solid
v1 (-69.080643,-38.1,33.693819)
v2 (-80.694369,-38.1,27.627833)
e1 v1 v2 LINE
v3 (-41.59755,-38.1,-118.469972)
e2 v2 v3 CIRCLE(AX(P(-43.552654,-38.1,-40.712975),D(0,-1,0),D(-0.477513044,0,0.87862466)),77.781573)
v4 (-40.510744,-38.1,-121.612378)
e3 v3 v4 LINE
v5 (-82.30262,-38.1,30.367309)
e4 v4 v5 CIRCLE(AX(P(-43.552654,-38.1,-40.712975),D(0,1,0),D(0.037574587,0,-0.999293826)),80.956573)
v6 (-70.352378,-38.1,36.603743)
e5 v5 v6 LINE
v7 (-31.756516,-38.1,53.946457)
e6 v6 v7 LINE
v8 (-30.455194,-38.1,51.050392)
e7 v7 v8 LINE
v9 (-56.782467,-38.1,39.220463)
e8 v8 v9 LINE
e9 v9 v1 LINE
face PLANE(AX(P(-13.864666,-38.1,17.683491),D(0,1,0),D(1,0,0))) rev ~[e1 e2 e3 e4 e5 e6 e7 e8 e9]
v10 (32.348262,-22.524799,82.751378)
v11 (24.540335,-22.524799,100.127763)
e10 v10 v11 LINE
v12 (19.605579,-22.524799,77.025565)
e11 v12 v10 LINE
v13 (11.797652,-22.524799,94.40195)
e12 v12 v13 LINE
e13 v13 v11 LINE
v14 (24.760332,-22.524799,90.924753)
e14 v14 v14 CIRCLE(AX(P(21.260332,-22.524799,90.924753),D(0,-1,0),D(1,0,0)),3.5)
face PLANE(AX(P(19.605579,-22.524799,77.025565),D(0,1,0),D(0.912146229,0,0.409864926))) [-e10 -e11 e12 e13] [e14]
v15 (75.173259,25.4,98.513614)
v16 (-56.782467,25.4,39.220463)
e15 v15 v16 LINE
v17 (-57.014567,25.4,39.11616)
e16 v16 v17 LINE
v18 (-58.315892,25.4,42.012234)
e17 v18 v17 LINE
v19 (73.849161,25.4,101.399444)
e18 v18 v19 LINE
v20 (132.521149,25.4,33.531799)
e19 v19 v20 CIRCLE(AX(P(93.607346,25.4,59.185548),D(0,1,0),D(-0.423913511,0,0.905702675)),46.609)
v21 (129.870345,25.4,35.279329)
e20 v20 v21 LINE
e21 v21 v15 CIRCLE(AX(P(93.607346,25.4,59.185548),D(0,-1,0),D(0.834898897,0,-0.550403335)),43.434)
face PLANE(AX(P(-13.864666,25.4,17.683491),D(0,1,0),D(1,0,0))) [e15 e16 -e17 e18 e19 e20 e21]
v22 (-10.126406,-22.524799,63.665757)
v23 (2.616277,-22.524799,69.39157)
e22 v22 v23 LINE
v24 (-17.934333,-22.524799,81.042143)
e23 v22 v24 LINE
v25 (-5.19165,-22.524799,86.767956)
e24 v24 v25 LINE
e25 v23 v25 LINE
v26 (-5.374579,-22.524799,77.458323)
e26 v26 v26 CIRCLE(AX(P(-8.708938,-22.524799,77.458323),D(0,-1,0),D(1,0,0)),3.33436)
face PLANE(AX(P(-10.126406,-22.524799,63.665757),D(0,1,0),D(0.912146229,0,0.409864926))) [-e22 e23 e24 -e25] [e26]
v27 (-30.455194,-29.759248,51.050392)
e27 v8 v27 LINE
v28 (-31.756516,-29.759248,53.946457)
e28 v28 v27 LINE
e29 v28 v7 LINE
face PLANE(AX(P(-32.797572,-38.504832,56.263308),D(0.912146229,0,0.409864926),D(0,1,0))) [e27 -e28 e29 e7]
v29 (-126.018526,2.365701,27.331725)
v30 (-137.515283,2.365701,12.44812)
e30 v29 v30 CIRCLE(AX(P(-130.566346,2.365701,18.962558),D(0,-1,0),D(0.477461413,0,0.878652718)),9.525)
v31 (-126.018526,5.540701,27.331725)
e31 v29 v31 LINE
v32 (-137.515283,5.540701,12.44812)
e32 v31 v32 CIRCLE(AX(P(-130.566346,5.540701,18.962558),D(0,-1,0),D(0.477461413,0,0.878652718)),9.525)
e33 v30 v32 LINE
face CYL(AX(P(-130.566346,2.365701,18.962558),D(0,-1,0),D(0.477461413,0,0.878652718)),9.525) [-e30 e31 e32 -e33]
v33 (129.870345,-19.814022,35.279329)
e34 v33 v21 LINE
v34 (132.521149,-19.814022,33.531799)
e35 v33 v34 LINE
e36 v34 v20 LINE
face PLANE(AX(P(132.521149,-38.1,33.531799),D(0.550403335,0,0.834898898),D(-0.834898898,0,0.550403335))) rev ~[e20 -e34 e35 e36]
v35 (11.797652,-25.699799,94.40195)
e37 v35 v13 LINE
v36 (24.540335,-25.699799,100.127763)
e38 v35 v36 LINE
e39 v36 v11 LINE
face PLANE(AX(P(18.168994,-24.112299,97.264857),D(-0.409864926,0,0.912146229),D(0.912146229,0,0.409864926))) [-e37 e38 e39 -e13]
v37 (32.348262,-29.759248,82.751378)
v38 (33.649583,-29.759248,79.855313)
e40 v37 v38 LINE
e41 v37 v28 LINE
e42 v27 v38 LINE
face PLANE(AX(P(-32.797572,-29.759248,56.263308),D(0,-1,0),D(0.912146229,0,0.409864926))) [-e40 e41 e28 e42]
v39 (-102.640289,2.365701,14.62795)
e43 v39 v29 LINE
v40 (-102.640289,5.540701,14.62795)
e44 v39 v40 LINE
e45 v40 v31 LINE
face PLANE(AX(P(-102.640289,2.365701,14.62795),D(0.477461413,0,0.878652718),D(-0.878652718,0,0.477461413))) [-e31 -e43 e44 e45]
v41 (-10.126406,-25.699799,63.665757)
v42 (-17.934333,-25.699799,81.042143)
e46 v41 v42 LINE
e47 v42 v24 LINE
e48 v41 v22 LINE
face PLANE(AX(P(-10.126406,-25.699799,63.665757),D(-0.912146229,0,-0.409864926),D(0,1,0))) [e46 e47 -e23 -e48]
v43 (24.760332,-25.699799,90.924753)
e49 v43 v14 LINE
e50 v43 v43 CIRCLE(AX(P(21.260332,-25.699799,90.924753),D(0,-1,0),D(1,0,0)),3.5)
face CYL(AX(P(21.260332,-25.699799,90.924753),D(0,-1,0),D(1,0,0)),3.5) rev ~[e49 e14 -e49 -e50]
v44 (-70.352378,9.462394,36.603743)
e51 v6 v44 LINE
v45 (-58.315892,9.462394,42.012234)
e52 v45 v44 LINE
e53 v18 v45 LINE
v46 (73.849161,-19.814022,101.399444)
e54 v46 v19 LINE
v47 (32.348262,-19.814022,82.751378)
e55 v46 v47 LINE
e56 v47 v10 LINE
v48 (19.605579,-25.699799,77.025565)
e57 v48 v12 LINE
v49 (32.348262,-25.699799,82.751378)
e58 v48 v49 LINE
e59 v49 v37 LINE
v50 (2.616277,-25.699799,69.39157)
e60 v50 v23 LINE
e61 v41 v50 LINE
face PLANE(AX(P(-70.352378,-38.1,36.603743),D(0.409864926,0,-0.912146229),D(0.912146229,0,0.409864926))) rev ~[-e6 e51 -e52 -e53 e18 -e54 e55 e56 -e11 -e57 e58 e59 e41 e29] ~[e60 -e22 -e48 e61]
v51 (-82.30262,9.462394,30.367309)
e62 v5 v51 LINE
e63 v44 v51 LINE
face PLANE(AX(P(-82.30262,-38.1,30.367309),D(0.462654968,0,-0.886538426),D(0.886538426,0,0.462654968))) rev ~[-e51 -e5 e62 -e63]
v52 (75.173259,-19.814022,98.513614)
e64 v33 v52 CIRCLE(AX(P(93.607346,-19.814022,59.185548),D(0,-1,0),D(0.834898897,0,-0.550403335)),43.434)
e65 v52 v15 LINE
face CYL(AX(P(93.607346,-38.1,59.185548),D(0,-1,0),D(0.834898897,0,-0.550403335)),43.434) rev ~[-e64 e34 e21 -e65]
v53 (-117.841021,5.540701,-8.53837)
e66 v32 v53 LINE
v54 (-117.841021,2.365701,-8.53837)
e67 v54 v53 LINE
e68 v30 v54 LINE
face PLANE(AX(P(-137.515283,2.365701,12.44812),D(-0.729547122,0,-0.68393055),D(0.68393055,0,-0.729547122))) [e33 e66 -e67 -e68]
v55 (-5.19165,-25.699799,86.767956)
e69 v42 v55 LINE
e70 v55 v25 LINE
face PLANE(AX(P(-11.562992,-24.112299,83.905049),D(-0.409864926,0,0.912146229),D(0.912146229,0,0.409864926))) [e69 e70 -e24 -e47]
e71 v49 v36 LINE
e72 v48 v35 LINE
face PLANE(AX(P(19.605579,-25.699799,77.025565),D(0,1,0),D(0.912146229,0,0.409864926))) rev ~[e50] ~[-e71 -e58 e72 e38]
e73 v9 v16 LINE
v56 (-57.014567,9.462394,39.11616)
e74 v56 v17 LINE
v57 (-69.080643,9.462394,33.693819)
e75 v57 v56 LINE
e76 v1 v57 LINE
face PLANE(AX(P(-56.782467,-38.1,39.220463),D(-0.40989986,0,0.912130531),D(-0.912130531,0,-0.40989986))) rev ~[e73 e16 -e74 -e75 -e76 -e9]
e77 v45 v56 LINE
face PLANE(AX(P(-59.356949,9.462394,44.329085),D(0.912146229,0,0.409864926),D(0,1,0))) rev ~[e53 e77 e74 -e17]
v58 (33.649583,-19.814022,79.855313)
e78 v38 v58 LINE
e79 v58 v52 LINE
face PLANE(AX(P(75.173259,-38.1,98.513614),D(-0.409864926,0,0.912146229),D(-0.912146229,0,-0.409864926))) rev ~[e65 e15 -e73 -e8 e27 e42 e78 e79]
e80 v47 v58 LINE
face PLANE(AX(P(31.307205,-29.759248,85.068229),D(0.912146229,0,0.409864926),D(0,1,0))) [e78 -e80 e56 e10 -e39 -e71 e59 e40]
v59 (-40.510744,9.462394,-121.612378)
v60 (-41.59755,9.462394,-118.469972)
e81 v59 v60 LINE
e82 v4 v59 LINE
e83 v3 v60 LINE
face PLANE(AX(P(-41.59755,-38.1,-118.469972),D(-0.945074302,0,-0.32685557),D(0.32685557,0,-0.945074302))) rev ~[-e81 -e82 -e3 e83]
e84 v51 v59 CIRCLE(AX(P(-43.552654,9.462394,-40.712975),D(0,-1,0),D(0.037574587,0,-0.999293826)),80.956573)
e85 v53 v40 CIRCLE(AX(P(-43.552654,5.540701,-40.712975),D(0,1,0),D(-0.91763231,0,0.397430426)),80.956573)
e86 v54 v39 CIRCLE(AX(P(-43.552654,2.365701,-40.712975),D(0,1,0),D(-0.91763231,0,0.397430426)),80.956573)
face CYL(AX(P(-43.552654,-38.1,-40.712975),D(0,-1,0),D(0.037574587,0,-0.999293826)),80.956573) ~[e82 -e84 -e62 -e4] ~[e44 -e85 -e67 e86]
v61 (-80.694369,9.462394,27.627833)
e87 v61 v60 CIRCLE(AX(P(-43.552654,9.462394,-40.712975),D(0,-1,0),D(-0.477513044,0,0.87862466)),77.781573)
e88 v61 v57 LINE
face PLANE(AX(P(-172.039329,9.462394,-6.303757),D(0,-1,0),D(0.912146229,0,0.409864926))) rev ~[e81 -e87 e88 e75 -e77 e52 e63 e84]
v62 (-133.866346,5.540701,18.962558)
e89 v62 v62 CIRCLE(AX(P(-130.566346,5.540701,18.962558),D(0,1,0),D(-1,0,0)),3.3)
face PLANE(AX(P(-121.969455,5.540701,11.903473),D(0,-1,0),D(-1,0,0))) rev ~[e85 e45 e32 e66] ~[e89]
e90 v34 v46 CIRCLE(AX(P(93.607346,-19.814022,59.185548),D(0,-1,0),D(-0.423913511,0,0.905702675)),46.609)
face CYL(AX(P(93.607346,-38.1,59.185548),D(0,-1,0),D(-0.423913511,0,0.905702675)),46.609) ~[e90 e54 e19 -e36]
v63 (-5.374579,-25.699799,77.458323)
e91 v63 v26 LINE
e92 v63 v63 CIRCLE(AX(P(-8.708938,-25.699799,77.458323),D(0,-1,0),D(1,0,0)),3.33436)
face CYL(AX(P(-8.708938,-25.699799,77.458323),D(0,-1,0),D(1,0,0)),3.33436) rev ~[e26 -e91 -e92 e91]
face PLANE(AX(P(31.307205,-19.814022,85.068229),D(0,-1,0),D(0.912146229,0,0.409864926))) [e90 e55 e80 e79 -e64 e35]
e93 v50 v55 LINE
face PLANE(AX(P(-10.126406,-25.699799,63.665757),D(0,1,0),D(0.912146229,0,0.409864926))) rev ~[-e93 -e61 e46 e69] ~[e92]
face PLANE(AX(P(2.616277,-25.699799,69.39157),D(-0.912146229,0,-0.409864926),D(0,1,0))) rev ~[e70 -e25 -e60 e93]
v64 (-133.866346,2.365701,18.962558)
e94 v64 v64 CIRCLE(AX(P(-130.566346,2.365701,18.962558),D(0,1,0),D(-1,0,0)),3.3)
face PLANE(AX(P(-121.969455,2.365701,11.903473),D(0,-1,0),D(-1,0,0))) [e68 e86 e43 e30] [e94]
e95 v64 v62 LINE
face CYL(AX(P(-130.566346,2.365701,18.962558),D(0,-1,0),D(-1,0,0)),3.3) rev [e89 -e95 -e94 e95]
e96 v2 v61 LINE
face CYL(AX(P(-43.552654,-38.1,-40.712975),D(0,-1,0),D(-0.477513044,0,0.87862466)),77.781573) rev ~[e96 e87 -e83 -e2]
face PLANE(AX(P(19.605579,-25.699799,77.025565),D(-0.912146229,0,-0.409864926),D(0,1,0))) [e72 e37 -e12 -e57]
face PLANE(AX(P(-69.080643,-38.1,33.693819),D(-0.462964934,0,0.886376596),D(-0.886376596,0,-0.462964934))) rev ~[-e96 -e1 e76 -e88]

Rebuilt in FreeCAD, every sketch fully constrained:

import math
import FreeCAD as App
import Part
import Sketcher
from FreeCAD import Vector
Q = App.Units.Quantity


def add_polygon(sketch, points):
    """Adds a closed chain of lines whose ends are joined by coincident constraints."""
    first, n = sketch.GeometryCount, len(points)
    for a, b in zip(points, points[1:] + points[:1]):
        sketch.addGeometry(Part.LineSegment(App.Vector(*a, 0), App.Vector(*b, 0)), False)
    for i in range(n):
        sketch.addConstraint(Sketcher.Constraint("Coincident", first + i, 2, first + (i + 1) % n, 1))

doc = App.newDocument("Part")
body = doc.addObject("PartDesign::Body", "Body")

sketch1 = doc.addObject("Sketcher::SketchObject", "Sketch")
body.addObject(sketch1)
sketch1.AttachmentSupport = (doc.XZ_Plane, [""])
sketch1.MapMode = "FlatFace"
sketch1.addGeometry([
    Part.LineSegment(Vector(75.173259, 98.513614, 0), Vector(-56.782467, 39.220463, 0)),
    Part.LineSegment(Vector(-56.782467, 39.220463, 0), Vector(-69.080643, 33.693819, 0)),
    Part.LineSegment(Vector(-69.080643, 33.693819, 0), Vector(-80.694369, 27.627833, 0)),
    Part.ArcOfCircle(Part.Circle(Vector(-43.552654, -40.712975, 0), Vector(0, 0, 1), 77.781573), math.radians(118.523101), math.radians(271.440328)),
    Part.LineSegment(Vector(-41.59755, -118.469972, 0), Vector(-40.510744, -121.612378, 0)),
    Part.ArcOfCircle(Part.Circle(Vector(-43.552654, -40.712975, 0), Vector(0, 0, 1), 80.956573), math.radians(118.597351), math.radians(272.153372)),
    Part.LineSegment(Vector(-82.30262, 30.367309, 0), Vector(-70.352378, 36.603743, 0)),
    Part.LineSegment(Vector(-70.352378, 36.603743, 0), Vector(73.849161, 101.399444, 0)),
    Part.ArcOfCircle(Part.Circle(Vector(93.607346, 59.185548, 0), Vector(0, 0, 1), 46.609), math.radians(-33.394688), math.radians(115.081912)),
    Part.LineSegment(Vector(132.521149, 33.531799, 0), Vector(129.870345, 35.279329, 0)),
    Part.ArcOfCircle(Part.Circle(Vector(93.607346, 59.185548, 0), Vector(0, 0, 1), 43.434), math.radians(-33.394688), math.radians(115.113708)),
], False)
sketch1.addConstraint([
    Sketcher.Constraint("Coincident", 0, 2, 1, 1),
    Sketcher.Constraint("Coincident", 1, 2, 2, 1),
    Sketcher.Constraint("Coincident", 2, 2, 3, 1),
    Sketcher.Constraint("Coincident", 3, 2, 4, 1),
    Sketcher.Constraint("Coincident", 4, 2, 5, 2),
    Sketcher.Constraint("Coincident", 5, 1, 6, 1),
    Sketcher.Constraint("Coincident", 6, 2, 7, 1),
    Sketcher.Constraint("Coincident", 7, 2, 8, 2),
    Sketcher.Constraint("Coincident", 8, 1, 9, 1),
    Sketcher.Constraint("Coincident", 9, 2, 10, 1),
    Sketcher.Constraint("Coincident", 10, 2, 0, 1),
    Sketcher.Constraint("Coincident", 5, 3, 3, 3),
    Sketcher.Constraint("Coincident", 10, 3, 8, 3),
    Sketcher.Constraint("Parallel", 0, 7),
    Sketcher.Constraint("Radius", 10, Q("1.71 in")),
    Sketcher.Constraint("Radius", 8, Q("1.835 in")),
    Sketcher.Constraint("DistanceX", 5, 3, 8, 3, Q("5.4 in")),
    Sketcher.Constraint("Radius", 3, Q("77.781573 mm")),
    Sketcher.Constraint("Radius", 5, Q("80.956573 mm")),
    Sketcher.Constraint("Distance", 0, Q("144.6651 mm")),
    Sketcher.Constraint("DistanceY", -1, 1, 8, 1, Q("33.531799 mm")),
    Sketcher.Constraint("DistanceX", 1, 2, 4, 2, Q("28.569899 mm")),
    Sketcher.Constraint("DistanceY", 6, 2, 7, 2, Q("64.7957 mm")),
    Sketcher.Constraint("DistanceX", 8, 3, 9, 2, Q("36.262999 mm")),
    Sketcher.Constraint("DistanceY", -1, 1, 1, 2, Q("33.693819 mm")),
    Sketcher.Constraint("DistanceX", 2, 2, -1, 1, Q("80.694369 mm")),
    Sketcher.Constraint("DistanceX", 3, 2, -1, 1, Q("41.59755 mm")),
    Sketcher.Constraint("DistanceY", 4, 2, -1, 1, Q("121.612378 mm")),
    Sketcher.Constraint("DistanceX", 5, 1, -1, 1, Q("82.30262 mm")),
    Sketcher.Constraint("DistanceY", -1, 1, 5, 1, Q("30.367309 mm")),
    Sketcher.Constraint("DistanceX", 6, 2, -1, 1, Q("70.352378 mm")),
    Sketcher.Constraint("DistanceX", -1, 1, 7, 2, Q("73.849161 mm")),
    Sketcher.Constraint("DistanceX", -1, 1, 8, 1, Q("132.521149 mm")),
    Sketcher.Constraint("DistanceY", -1, 1, 9, 2, Q("35.279329 mm")),
    Sketcher.Constraint("DistanceX", -1, 1, 10, 2, Q("75.173259 mm")),
])
pad1 = doc.addObject("PartDesign::Pad", "Pad")
body.addObject(pad1)
pad1.Profile = sketch1
pad1.Type = "TwoLengths"
pad1.Length = Q("1 in")
pad1.Length2 = Q("1.5 in")
pad1.Reversed = True

sketch2 = doc.addObject("Sketcher::SketchObject", "Sketch001")
body.addObject(sketch2)
sketch2.Placement = App.Placement(Vector(-26.544057, 0, 59.073271), App.Rotation(Vector(0.912146229, 0, 0.409864926), Vector(0, 1.000000001, 0), Vector(-0.409864926, 0, 0.912146229), "ZXY"))
add_polygon(sketch2, [(-159.508714, 27.282788), (-159.508714, 9.462394), (-35.97328, 9.462394), (-35.97328, 27.282788)])
add_polygon(sketch2, [(63.423232, -19.814022), (63.423232, -29.759248), (-6.855825, -29.759248), (-6.855825, -38.504832), (63.423232, -38.504832), (171.071882, -38.504832), (171.071882, -19.814022)])
sketch2.addConstraint([
    Sketcher.Constraint("Vertical", 0),
    Sketcher.Constraint("Horizontal", 1),
    Sketcher.Constraint("Vertical", 2),
    Sketcher.Constraint("Horizontal", 3),
    Sketcher.Constraint("Vertical", 4),
    Sketcher.Constraint("Horizontal", 5),
    Sketcher.Constraint("Vertical", 6),
    Sketcher.Constraint("Horizontal", 7),
    Sketcher.Constraint("Horizontal", 8),
    Sketcher.Constraint("Vertical", 9),
    Sketcher.Constraint("Horizontal", 10),
    Sketcher.Constraint("Vertical", 4, 2, 7, 2),
    Sketcher.Constraint("DistanceX", 8, 1, 8, 2, Q("107.64865 mm")),
    Sketcher.Constraint("DistanceY", 9, 1, 9, 2, Q("18.69081 mm")),
    Sketcher.Constraint("DistanceX", 1, 1, 1, 2, Q("123.535435 mm")),
    Sketcher.Constraint("DistanceX", 5, 2, 5, 1, Q("70.279058 mm")),
    Sketcher.Constraint("DistanceY", 0, 2, 0, 1, Q("17.820394 mm")),
    Sketcher.Constraint("DistanceY", 4, 2, 4, 1, Q("9.945226 mm")),
    Sketcher.Constraint("DistanceX", 1, 2, -1, 1, Q("35.97328 mm")),
    Sketcher.Constraint("DistanceY", -1, 1, 2, 2, Q("27.282788 mm")),
    Sketcher.Constraint("DistanceX", 1, 2, 4, 2, Q("99.396512 mm")),
    Sketcher.Constraint("DistanceY", 6, 2, 2, 2, Q("65.787621 mm")),
])
pocket1 = doc.addObject("PartDesign::Pocket", "Pocket")
body.addObject(pocket1)
pocket1.Profile = sketch2
pocket1.Type = "ThroughAll"

sketch3 = doc.addObject("Sketcher::SketchObject", "Sketch002")
body.addObject(sketch3)
sketch3.Placement = App.Placement(Vector(-25.503, 0, 56.756419), App.Rotation(Vector(0.912146229, 0, 0.409864926), Vector(0, 1.000000001, 0), Vector(-0.409864926, 0, 0.912146229), "ZXY"))
add_polygon(sketch3, [(49.453232, -22.524799), (49.453232, -25.699799), (63.423232, -25.699799), (63.423232, -22.524799)])
add_polygon(sketch3, [(16.857598, -22.524799), (16.857598, -25.699799), (30.827598, -25.699799), (30.827598, -22.524799)])
sketch3.addConstraint([
    Sketcher.Constraint("Vertical", 0),
    Sketcher.Constraint("Horizontal", 1),
    Sketcher.Constraint("Vertical", 2),
    Sketcher.Constraint("Horizontal", 3),
    Sketcher.Constraint("Vertical", 4),
    Sketcher.Constraint("Horizontal", 5),
    Sketcher.Constraint("Vertical", 6),
    Sketcher.Constraint("Horizontal", 7),
    Sketcher.Constraint("Horizontal", 1, 2, 4, 2),
    Sketcher.Constraint("Horizontal", 3, 2, 6, 2),
    Sketcher.Constraint("Equal", 3, 5),
    Sketcher.Constraint("DistanceX", 1, 1, 1, 2, Q("0.55 in")),
    Sketcher.Constraint("DistanceY", 0, 2, 0, 1, Q("0.125 in")),
    Sketcher.Constraint("DistanceY", 0, 2, -1, 1, Q("25.699799 mm")),
    Sketcher.Constraint("DistanceX", -1, 1, 0, 2, Q("49.453232 mm")),
    Sketcher.Constraint("DistanceX", -1, 1, 4, 2, Q("16.857598 mm")),
])
pad2 = doc.addObject("PartDesign::Pad", "Pad001")
body.addObject(pad2)
pad2.Profile = sketch3
pad2.Length = Q("0.75 in")

sketch4 = doc.addObject("Sketcher::SketchObject", "Sketch003")
body.addObject(sketch4)
sketch4.AttachmentSupport = (doc.XZ_Plane, [""])
sketch4.MapMode = "FlatFace"
sketch4.AttachmentOffset = App.Placement(Vector(0, 0, 25.699799), App.Rotation())
sketch4.addGeometry([
    Part.Circle(Vector(21.260332, 90.924753, 0), Vector(0, 0, 1), 3.5),
    Part.Circle(Vector(-8.708938, 77.458323, 0), Vector(0, 0, 1), 3.33436),
], False)
sketch4.addConstraint([
    Sketcher.Constraint("Diameter", 0, Q("7 mm")),
    Sketcher.Constraint("Diameter", 1, Q("6.66872 mm")),
    Sketcher.Constraint("DistanceX", -1, 1, 0, 3, Q("21.260332 mm")),
    Sketcher.Constraint("DistanceX", 1, 3, -1, 1, Q("8.708938 mm")),
    Sketcher.Constraint("DistanceY", 1, 3, 0, 3, Q("13.466429 mm")),
    Sketcher.Constraint("DistanceY", -1, 1, 0, 3, Q("90.924753 mm")),
])
pocket2 = doc.addObject("PartDesign::Pocket", "Pocket001")
body.addObject(pocket2)
pocket2.Profile = sketch4
pocket2.Type = "ThroughAll"

sketch5 = doc.addObject("Sketcher::SketchObject", "Sketch004")
body.addObject(sketch5)
sketch5.AttachmentSupport = (doc.XZ_Plane, [""])
sketch5.MapMode = "FlatFace"
sketch5.AttachmentOffset = App.Placement(Vector(0, 0, -2.365701), App.Rotation())
sketch5.addGeometry([
    Part.LineSegment(Vector(-117.841021, -8.53837, 0), Vector(-137.515283, 12.44812, 0)),
    Part.ArcOfCircle(Part.Circle(Vector(-130.566346, 18.962558, 0), Vector(0, 0, 1), 9.525), math.radians(61.480266), math.radians(223.151559)),
    Part.LineSegment(Vector(-126.018526, 27.331725, 0), Vector(-102.640289, 14.62795, 0)),
    Part.ArcOfCircle(Part.Circle(Vector(-43.552654, -40.712975, 0), Vector(0, 0, 1), 80.956573), math.radians(136.875353), math.radians(156.58236)),
    Part.Circle(Vector(-130.566346, 18.962558, 0), Vector(0, 0, 1), 3.3),
], False)
sketch5.addConstraint([
    Sketcher.Constraint("Tangent", 0, 2, 1, 2),
    Sketcher.Constraint("Tangent", 1, 1, 2, 1),
    Sketcher.Constraint("Coincident", 2, 2, 3, 1),
    Sketcher.Constraint("Coincident", 3, 2, 0, 1),
    Sketcher.Constraint("Coincident", 4, 3, 1, 3),
    Sketcher.Constraint("Radius", 1, Q("0.375 in")),
    Sketcher.Constraint("Diameter", 4, Q("6.6 mm")),
    Sketcher.Constraint("Radius", 3, Q("80.956573 mm")),
    Sketcher.Constraint("DistanceY", 3, 3, 1, 1, Q("68.0447 mm")),
    Sketcher.Constraint("Distance", 0, Q("28.766462 mm")),
    Sketcher.Constraint("DistanceY", -1, 1, 1, 3, Q("18.962558 mm")),
    Sketcher.Constraint("DistanceY", -1, 1, 0, 2, Q("12.44812 mm")),
    Sketcher.Constraint("DistanceX", 2, 2, -1, 1, Q("102.640289 mm")),
    Sketcher.Constraint("DistanceY", -1, 1, 2, 2, Q("14.62795 mm")),
])
pad3 = doc.addObject("PartDesign::Pad", "Pad002")
body.addObject(pad3)
pad3.Profile = sketch5
pad3.Length = Q("0.125 in")
pad3.Reversed = True

doc.recompute()
